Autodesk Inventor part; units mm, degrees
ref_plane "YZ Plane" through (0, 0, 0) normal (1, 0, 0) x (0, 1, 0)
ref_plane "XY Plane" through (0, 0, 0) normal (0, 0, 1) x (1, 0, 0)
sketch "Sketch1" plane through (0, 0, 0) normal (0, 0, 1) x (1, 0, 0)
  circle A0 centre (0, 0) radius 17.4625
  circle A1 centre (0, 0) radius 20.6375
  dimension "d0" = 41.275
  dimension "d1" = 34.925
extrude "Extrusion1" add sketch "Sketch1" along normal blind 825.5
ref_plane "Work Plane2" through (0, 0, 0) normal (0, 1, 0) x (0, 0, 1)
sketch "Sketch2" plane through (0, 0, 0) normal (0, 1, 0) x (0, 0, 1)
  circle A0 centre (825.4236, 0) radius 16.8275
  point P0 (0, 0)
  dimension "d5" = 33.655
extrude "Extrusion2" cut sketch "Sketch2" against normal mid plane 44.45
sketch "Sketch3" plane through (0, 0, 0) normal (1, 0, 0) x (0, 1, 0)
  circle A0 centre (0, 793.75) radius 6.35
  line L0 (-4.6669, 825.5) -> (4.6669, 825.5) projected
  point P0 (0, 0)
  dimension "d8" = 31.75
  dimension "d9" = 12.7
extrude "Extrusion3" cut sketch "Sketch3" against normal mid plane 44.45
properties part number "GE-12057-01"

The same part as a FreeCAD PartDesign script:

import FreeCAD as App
import Part
import Sketcher

V = App.Vector
Q = App.Units.Quantity

doc = App.newDocument("Part")
params = doc.addObject("Spreadsheet::Sheet", "Params")
for row, (alias, value) in enumerate([
    ("sketch1_diameter", "1.625 in"),
    ("sketch1_diameter2", "1.375 in"),
    ("pad1_length", "32.5 in"),
    ("sketch2_diameter", "1.325 in"),
    ("pocket1_length", "1.75 in"),
    ("sketch3_diameter", "0.5 in"),
    ("pocket2_length", "1.75 in"),
], start=1):
    params.set(f"A{row}", alias)
    params.set(f"B{row}", "=" + value)
    params.setAlias(f"B{row}", alias)

body = doc.addObject("PartDesign::Body", "Body")

# Sketch on XY plane
sketch1 = body.newObject("Sketcher::SketchObject", "Sketch")
sketch1.AttachmentSupport = (doc.getObject("XY_Plane"), [""])
sketch1.MapMode = "FlatFace"
sketch1.addGeometry([
    Part.Circle(V(0, 0, 0), V(0, 0, 1), 20.6375),
    Part.Circle(V(0, 0, 0), V(0, 0, 1), 17.4625),
], False)
sketch1.addConstraint([
    Sketcher.Constraint("Coincident", 0, 3, -1, 1),
    Sketcher.Constraint("Coincident", 1, 3, -1, 1),
    Sketcher.Constraint("Diameter", 0, Q("1.625 in")),
    Sketcher.Constraint("Diameter", 1, Q("1.375 in")),
])
sketch1.setExpression("Constraints[2]", "Params.sketch1_diameter")
sketch1.setExpression("Constraints[3]", "Params.sketch1_diameter2")
pad1 = body.newObject("PartDesign::Pad", "Pad")
pad1.Profile = sketch1
pad1.setExpression("Length", "Params.pad1_length")

# Sketch on XZ plane
sketch2 = body.newObject("Sketcher::SketchObject", "Sketch001")
sketch2.AttachmentSupport = (doc.getObject("XZ_Plane"), [""])
sketch2.MapMode = "FlatFace"
sketch2.addGeometry(Part.Circle(V(0, 825.4236, 0), V(0, 0, 1), 16.8275), False)
sketch2.addConstraint([
    Sketcher.Constraint("PointOnObject", 0, 3, -2),
    Sketcher.Constraint("Diameter", 0, Q("1.325 in")),
    Sketcher.Constraint("DistanceY", -1, 1, 0, 3, Q("32.497 in")),
])
sketch2.setExpression("Constraints[1]", "Params.sketch2_diameter")
pocket1 = body.newObject("PartDesign::Pocket", "Pocket")
pocket1.Profile = sketch2
pocket1.setExpression("Length", "Params.pocket1_length")
pocket1.Midplane = True

# Sketch on YZ plane
sketch3 = body.newObject("Sketcher::SketchObject", "Sketch002")
sketch3.AttachmentSupport = (doc.getObject("YZ_Plane"), [""])
sketch3.MapMode = "FlatFace"
sketch3.addGeometry(Part.Circle(V(0, 793.75, 0), V(0, 0, 1), 6.35), False)
sketch3.addConstraint([
    Sketcher.Constraint("PointOnObject", 0, 3, -2),
    Sketcher.Constraint("Diameter", 0, Q("0.5 in")),
    Sketcher.Constraint("DistanceY", -1, 1, 0, 3, Q("31.25 in")),
])
sketch3.setExpression("Constraints[1]", "Params.sketch3_diameter")
pocket2 = body.newObject("PartDesign::Pocket", "Pocket001")
pocket2.Profile = sketch3
pocket2.setExpression("Length", "Params.pocket2_length")
pocket2.Midplane = True

doc.recompute()
